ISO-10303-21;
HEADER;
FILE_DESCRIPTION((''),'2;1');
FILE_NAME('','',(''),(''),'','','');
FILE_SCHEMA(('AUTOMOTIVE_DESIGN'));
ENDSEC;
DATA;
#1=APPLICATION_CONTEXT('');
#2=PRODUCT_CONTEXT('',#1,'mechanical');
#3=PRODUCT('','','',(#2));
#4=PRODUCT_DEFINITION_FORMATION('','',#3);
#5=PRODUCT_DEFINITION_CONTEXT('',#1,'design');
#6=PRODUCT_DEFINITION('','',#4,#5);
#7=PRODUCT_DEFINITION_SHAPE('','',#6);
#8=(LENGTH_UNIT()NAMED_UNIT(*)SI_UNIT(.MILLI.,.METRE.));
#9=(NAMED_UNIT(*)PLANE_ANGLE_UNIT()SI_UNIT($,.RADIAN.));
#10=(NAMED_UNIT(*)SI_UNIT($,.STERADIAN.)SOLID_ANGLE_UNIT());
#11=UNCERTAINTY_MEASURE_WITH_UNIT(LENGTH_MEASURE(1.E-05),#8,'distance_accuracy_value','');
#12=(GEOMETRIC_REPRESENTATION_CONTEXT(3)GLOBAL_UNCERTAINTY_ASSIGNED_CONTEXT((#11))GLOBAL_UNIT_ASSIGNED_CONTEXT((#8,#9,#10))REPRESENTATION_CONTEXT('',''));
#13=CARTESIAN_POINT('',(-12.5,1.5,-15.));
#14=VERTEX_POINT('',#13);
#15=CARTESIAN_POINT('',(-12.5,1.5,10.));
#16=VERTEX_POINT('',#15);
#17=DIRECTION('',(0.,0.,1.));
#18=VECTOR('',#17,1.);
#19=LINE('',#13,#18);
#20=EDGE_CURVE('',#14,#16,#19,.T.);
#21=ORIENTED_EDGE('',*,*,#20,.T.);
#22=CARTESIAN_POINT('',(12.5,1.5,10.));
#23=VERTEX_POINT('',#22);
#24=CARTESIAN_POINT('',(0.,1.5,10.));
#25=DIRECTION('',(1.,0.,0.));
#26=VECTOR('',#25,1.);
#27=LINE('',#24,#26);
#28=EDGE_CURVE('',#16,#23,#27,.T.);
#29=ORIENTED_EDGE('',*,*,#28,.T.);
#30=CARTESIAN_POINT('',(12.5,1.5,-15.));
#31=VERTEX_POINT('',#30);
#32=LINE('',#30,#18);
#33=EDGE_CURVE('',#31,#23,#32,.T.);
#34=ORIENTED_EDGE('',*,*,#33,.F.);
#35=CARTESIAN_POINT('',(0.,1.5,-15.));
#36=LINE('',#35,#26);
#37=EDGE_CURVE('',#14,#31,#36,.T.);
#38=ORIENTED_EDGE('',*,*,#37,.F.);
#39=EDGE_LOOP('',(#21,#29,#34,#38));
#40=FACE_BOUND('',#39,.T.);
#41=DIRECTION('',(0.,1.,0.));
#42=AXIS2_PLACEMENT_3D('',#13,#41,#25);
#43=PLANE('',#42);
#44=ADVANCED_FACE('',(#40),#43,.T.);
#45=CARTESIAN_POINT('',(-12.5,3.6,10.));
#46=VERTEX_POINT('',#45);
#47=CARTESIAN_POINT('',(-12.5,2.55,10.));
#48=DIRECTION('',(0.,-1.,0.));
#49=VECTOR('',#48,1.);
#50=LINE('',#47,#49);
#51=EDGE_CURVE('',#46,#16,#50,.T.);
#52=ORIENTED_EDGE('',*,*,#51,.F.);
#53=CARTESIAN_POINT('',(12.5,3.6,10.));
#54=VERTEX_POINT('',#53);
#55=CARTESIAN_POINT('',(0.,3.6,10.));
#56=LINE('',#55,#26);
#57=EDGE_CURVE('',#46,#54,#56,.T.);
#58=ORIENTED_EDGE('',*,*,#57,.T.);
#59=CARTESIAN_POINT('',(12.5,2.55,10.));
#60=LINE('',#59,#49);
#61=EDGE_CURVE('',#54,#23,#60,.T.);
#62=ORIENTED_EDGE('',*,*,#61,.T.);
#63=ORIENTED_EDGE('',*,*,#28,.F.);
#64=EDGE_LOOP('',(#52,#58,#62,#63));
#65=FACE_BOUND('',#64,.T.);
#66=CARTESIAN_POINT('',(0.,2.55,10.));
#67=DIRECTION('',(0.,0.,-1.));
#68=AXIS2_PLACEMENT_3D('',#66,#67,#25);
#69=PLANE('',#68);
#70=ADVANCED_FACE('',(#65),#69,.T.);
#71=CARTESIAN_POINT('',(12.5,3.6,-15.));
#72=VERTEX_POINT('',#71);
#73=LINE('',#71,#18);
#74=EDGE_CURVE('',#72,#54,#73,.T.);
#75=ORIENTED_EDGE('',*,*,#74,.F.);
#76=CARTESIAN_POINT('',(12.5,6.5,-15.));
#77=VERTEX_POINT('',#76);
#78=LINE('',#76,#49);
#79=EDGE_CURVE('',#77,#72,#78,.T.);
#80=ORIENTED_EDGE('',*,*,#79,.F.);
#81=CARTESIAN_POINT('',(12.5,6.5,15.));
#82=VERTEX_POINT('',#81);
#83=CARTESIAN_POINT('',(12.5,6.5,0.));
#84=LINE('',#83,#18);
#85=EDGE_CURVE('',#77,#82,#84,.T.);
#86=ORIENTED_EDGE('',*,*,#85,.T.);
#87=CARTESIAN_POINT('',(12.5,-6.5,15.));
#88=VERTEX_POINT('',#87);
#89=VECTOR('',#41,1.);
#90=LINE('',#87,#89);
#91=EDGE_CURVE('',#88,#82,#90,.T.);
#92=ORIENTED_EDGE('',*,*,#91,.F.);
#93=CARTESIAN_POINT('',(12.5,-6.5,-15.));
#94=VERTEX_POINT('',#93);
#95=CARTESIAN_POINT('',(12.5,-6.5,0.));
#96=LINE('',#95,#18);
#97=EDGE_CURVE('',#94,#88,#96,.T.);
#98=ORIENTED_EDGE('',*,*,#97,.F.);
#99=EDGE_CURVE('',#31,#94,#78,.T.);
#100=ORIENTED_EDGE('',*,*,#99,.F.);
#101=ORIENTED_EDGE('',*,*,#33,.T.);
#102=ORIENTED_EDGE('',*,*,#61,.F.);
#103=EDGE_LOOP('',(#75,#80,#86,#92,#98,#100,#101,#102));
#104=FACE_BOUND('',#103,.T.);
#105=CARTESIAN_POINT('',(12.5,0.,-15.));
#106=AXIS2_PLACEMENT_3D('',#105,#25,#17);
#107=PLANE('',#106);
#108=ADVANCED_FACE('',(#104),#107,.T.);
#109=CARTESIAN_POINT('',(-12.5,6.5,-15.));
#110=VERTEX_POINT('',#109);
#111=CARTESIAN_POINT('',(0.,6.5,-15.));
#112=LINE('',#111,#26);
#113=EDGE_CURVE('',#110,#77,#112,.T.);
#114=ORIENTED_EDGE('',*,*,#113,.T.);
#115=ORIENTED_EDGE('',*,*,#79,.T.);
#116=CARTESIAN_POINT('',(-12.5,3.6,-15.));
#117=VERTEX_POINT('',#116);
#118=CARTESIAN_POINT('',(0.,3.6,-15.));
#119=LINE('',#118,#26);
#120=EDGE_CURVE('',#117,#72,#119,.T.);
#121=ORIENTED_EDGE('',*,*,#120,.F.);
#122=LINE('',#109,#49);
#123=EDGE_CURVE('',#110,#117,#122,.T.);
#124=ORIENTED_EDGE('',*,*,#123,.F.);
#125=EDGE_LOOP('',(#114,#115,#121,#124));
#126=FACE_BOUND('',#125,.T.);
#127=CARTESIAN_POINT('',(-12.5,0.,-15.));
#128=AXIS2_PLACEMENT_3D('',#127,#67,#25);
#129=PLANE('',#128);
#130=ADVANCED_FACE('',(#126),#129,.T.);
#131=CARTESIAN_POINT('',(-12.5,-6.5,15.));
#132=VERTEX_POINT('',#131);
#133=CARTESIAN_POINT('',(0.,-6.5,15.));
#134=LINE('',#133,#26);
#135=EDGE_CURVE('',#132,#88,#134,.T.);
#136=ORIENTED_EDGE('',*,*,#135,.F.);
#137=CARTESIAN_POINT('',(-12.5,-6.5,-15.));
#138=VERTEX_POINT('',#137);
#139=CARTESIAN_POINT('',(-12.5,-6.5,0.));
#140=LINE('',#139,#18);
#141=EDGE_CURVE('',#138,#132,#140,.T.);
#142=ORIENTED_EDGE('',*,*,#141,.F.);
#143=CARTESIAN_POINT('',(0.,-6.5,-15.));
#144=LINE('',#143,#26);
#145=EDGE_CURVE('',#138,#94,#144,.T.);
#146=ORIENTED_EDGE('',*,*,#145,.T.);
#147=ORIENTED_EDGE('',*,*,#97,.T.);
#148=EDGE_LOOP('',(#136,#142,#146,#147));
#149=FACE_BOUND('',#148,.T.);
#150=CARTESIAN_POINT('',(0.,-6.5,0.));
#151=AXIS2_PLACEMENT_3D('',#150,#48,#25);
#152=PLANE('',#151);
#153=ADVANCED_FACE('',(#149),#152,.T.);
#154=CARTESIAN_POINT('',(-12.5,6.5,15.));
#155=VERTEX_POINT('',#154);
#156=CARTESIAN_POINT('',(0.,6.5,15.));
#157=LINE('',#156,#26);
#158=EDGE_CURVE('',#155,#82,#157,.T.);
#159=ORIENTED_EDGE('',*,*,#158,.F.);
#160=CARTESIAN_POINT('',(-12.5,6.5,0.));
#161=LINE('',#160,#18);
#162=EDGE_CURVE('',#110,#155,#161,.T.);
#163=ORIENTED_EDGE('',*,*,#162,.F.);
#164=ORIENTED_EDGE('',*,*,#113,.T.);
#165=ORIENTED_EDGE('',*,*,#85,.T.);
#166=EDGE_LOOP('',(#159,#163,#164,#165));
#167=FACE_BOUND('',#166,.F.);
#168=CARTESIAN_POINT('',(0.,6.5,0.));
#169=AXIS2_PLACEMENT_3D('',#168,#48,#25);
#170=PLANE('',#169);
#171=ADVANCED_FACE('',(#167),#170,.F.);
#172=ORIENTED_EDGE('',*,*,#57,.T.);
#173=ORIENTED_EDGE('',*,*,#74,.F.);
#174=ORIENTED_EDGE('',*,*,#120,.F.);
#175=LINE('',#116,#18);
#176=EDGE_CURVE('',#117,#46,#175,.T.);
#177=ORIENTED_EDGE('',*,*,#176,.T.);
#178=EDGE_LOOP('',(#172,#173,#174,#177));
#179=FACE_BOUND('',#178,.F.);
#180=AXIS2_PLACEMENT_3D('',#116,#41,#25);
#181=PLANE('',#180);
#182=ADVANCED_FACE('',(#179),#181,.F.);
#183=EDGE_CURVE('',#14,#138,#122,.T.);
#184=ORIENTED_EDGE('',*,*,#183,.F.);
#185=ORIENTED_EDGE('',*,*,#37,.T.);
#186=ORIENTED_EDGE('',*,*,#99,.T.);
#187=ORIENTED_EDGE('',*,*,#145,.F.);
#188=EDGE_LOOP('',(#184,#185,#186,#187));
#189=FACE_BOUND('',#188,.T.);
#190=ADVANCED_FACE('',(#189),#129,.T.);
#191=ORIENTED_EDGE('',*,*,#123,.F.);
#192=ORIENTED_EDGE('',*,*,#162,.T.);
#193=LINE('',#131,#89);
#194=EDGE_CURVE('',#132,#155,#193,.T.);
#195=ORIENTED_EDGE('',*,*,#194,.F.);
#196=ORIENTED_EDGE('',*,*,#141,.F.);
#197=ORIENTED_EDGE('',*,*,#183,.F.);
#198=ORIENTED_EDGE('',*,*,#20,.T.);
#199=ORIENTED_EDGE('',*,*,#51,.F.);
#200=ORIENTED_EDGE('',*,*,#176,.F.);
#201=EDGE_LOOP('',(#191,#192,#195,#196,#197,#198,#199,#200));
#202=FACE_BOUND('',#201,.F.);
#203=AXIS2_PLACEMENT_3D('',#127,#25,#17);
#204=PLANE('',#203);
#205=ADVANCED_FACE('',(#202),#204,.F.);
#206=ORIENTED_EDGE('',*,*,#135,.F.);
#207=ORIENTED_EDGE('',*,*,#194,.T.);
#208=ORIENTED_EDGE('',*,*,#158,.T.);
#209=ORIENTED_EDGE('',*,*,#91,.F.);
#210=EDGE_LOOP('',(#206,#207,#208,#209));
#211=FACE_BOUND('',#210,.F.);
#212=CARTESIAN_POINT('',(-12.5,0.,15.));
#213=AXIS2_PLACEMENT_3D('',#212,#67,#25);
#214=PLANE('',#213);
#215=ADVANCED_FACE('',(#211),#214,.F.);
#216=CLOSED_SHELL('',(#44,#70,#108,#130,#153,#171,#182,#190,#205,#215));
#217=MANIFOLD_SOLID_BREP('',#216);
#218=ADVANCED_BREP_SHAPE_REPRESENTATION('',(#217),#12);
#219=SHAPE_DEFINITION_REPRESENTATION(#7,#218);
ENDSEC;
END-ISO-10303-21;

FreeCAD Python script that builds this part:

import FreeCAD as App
import Part
import Sketcher

V = App.Vector
Q = App.Units.Quantity


def add_polygon(sketch, points):
    """Adds a closed chain of lines whose ends are joined by coincident constraints."""
    first, n = sketch.GeometryCount, len(points)
    for a, b in zip(points, points[1:] + points[:1]):
        sketch.addGeometry(Part.LineSegment(App.Vector(*a, 0), App.Vector(*b, 0)), False)
    for i in range(n):
        sketch.addConstraint(Sketcher.Constraint("Coincident", first + i, 2, first + (i + 1) % n, 1))

doc = App.newDocument("Part")
body = doc.addObject("PartDesign::Body", "Body")

# Sketch on XZ plane
sketch1 = body.newObject("Sketcher::SketchObject", "Sketch")
sketch1.AttachmentSupport = (doc.getObject("XZ_Plane"), [""])
sketch1.MapMode = "FlatFace"
add_polygon(sketch1, [(-12, 15), (-12, -15), (12, -15), (12, 15)])  # lines 0-3
sketch1.addConstraint([
    Sketcher.Constraint("Vertical", 0),
    Sketcher.Constraint("Horizontal", 1),
    Sketcher.Constraint("Vertical", 2),
    Sketcher.Constraint("Horizontal", 3),
    Sketcher.Constraint("Symmetric", 0, 2, 2, 2, -1, 1),
    Sketcher.Constraint("DistanceX", 1, 1, 1, 2, Q("25 mm")),
    Sketcher.Constraint("DistanceY", 0, 2, 0, 1, Q("30 mm")),
])
pad1 = body.newObject("PartDesign::Pad", "Pad")
pad1.Profile = sketch1
pad1.Length = 13
pad1.Midplane = True

# Sketch on XY plane
sketch2 = body.newObject("Sketcher::SketchObject", "Sketch001")
sketch2.AttachmentSupport = (doc.getObject("XY_Plane"), [""])
sketch2.MapMode = "FlatFace"
sketch2.AttachmentOffset = App.Placement(V(0, 0, -15), App.Rotation())
add_polygon(sketch2, [(-12.5, 1.5), (-12.5, 3.6), (12.5, 3.6), (12.5, 1.5)])  # lines 0-3
sketch2.addConstraint([
    Sketcher.Constraint("Vertical", 0),
    Sketcher.Constraint("Horizontal", 1),
    Sketcher.Constraint("Vertical", 2),
    Sketcher.Constraint("Horizontal", 3),
    Sketcher.Constraint("DistanceX", 1, 1, 1, 2, Q("25 mm")),
    Sketcher.Constraint("DistanceY", 0, 1, 0, 2, Q("2.1 mm")),
    Sketcher.Constraint("DistanceX", 0, 2, -1, 1, Q("12.5 mm")),
    Sketcher.Constraint("DistanceY", -1, 1, 0, 2, Q("3.6 mm")),
])
pocket1 = body.newObject("PartDesign::Pocket", "Pocket")
pocket1.Profile = sketch2
pocket1.Length = 25
pocket1.Reversed = True

doc.recompute()
